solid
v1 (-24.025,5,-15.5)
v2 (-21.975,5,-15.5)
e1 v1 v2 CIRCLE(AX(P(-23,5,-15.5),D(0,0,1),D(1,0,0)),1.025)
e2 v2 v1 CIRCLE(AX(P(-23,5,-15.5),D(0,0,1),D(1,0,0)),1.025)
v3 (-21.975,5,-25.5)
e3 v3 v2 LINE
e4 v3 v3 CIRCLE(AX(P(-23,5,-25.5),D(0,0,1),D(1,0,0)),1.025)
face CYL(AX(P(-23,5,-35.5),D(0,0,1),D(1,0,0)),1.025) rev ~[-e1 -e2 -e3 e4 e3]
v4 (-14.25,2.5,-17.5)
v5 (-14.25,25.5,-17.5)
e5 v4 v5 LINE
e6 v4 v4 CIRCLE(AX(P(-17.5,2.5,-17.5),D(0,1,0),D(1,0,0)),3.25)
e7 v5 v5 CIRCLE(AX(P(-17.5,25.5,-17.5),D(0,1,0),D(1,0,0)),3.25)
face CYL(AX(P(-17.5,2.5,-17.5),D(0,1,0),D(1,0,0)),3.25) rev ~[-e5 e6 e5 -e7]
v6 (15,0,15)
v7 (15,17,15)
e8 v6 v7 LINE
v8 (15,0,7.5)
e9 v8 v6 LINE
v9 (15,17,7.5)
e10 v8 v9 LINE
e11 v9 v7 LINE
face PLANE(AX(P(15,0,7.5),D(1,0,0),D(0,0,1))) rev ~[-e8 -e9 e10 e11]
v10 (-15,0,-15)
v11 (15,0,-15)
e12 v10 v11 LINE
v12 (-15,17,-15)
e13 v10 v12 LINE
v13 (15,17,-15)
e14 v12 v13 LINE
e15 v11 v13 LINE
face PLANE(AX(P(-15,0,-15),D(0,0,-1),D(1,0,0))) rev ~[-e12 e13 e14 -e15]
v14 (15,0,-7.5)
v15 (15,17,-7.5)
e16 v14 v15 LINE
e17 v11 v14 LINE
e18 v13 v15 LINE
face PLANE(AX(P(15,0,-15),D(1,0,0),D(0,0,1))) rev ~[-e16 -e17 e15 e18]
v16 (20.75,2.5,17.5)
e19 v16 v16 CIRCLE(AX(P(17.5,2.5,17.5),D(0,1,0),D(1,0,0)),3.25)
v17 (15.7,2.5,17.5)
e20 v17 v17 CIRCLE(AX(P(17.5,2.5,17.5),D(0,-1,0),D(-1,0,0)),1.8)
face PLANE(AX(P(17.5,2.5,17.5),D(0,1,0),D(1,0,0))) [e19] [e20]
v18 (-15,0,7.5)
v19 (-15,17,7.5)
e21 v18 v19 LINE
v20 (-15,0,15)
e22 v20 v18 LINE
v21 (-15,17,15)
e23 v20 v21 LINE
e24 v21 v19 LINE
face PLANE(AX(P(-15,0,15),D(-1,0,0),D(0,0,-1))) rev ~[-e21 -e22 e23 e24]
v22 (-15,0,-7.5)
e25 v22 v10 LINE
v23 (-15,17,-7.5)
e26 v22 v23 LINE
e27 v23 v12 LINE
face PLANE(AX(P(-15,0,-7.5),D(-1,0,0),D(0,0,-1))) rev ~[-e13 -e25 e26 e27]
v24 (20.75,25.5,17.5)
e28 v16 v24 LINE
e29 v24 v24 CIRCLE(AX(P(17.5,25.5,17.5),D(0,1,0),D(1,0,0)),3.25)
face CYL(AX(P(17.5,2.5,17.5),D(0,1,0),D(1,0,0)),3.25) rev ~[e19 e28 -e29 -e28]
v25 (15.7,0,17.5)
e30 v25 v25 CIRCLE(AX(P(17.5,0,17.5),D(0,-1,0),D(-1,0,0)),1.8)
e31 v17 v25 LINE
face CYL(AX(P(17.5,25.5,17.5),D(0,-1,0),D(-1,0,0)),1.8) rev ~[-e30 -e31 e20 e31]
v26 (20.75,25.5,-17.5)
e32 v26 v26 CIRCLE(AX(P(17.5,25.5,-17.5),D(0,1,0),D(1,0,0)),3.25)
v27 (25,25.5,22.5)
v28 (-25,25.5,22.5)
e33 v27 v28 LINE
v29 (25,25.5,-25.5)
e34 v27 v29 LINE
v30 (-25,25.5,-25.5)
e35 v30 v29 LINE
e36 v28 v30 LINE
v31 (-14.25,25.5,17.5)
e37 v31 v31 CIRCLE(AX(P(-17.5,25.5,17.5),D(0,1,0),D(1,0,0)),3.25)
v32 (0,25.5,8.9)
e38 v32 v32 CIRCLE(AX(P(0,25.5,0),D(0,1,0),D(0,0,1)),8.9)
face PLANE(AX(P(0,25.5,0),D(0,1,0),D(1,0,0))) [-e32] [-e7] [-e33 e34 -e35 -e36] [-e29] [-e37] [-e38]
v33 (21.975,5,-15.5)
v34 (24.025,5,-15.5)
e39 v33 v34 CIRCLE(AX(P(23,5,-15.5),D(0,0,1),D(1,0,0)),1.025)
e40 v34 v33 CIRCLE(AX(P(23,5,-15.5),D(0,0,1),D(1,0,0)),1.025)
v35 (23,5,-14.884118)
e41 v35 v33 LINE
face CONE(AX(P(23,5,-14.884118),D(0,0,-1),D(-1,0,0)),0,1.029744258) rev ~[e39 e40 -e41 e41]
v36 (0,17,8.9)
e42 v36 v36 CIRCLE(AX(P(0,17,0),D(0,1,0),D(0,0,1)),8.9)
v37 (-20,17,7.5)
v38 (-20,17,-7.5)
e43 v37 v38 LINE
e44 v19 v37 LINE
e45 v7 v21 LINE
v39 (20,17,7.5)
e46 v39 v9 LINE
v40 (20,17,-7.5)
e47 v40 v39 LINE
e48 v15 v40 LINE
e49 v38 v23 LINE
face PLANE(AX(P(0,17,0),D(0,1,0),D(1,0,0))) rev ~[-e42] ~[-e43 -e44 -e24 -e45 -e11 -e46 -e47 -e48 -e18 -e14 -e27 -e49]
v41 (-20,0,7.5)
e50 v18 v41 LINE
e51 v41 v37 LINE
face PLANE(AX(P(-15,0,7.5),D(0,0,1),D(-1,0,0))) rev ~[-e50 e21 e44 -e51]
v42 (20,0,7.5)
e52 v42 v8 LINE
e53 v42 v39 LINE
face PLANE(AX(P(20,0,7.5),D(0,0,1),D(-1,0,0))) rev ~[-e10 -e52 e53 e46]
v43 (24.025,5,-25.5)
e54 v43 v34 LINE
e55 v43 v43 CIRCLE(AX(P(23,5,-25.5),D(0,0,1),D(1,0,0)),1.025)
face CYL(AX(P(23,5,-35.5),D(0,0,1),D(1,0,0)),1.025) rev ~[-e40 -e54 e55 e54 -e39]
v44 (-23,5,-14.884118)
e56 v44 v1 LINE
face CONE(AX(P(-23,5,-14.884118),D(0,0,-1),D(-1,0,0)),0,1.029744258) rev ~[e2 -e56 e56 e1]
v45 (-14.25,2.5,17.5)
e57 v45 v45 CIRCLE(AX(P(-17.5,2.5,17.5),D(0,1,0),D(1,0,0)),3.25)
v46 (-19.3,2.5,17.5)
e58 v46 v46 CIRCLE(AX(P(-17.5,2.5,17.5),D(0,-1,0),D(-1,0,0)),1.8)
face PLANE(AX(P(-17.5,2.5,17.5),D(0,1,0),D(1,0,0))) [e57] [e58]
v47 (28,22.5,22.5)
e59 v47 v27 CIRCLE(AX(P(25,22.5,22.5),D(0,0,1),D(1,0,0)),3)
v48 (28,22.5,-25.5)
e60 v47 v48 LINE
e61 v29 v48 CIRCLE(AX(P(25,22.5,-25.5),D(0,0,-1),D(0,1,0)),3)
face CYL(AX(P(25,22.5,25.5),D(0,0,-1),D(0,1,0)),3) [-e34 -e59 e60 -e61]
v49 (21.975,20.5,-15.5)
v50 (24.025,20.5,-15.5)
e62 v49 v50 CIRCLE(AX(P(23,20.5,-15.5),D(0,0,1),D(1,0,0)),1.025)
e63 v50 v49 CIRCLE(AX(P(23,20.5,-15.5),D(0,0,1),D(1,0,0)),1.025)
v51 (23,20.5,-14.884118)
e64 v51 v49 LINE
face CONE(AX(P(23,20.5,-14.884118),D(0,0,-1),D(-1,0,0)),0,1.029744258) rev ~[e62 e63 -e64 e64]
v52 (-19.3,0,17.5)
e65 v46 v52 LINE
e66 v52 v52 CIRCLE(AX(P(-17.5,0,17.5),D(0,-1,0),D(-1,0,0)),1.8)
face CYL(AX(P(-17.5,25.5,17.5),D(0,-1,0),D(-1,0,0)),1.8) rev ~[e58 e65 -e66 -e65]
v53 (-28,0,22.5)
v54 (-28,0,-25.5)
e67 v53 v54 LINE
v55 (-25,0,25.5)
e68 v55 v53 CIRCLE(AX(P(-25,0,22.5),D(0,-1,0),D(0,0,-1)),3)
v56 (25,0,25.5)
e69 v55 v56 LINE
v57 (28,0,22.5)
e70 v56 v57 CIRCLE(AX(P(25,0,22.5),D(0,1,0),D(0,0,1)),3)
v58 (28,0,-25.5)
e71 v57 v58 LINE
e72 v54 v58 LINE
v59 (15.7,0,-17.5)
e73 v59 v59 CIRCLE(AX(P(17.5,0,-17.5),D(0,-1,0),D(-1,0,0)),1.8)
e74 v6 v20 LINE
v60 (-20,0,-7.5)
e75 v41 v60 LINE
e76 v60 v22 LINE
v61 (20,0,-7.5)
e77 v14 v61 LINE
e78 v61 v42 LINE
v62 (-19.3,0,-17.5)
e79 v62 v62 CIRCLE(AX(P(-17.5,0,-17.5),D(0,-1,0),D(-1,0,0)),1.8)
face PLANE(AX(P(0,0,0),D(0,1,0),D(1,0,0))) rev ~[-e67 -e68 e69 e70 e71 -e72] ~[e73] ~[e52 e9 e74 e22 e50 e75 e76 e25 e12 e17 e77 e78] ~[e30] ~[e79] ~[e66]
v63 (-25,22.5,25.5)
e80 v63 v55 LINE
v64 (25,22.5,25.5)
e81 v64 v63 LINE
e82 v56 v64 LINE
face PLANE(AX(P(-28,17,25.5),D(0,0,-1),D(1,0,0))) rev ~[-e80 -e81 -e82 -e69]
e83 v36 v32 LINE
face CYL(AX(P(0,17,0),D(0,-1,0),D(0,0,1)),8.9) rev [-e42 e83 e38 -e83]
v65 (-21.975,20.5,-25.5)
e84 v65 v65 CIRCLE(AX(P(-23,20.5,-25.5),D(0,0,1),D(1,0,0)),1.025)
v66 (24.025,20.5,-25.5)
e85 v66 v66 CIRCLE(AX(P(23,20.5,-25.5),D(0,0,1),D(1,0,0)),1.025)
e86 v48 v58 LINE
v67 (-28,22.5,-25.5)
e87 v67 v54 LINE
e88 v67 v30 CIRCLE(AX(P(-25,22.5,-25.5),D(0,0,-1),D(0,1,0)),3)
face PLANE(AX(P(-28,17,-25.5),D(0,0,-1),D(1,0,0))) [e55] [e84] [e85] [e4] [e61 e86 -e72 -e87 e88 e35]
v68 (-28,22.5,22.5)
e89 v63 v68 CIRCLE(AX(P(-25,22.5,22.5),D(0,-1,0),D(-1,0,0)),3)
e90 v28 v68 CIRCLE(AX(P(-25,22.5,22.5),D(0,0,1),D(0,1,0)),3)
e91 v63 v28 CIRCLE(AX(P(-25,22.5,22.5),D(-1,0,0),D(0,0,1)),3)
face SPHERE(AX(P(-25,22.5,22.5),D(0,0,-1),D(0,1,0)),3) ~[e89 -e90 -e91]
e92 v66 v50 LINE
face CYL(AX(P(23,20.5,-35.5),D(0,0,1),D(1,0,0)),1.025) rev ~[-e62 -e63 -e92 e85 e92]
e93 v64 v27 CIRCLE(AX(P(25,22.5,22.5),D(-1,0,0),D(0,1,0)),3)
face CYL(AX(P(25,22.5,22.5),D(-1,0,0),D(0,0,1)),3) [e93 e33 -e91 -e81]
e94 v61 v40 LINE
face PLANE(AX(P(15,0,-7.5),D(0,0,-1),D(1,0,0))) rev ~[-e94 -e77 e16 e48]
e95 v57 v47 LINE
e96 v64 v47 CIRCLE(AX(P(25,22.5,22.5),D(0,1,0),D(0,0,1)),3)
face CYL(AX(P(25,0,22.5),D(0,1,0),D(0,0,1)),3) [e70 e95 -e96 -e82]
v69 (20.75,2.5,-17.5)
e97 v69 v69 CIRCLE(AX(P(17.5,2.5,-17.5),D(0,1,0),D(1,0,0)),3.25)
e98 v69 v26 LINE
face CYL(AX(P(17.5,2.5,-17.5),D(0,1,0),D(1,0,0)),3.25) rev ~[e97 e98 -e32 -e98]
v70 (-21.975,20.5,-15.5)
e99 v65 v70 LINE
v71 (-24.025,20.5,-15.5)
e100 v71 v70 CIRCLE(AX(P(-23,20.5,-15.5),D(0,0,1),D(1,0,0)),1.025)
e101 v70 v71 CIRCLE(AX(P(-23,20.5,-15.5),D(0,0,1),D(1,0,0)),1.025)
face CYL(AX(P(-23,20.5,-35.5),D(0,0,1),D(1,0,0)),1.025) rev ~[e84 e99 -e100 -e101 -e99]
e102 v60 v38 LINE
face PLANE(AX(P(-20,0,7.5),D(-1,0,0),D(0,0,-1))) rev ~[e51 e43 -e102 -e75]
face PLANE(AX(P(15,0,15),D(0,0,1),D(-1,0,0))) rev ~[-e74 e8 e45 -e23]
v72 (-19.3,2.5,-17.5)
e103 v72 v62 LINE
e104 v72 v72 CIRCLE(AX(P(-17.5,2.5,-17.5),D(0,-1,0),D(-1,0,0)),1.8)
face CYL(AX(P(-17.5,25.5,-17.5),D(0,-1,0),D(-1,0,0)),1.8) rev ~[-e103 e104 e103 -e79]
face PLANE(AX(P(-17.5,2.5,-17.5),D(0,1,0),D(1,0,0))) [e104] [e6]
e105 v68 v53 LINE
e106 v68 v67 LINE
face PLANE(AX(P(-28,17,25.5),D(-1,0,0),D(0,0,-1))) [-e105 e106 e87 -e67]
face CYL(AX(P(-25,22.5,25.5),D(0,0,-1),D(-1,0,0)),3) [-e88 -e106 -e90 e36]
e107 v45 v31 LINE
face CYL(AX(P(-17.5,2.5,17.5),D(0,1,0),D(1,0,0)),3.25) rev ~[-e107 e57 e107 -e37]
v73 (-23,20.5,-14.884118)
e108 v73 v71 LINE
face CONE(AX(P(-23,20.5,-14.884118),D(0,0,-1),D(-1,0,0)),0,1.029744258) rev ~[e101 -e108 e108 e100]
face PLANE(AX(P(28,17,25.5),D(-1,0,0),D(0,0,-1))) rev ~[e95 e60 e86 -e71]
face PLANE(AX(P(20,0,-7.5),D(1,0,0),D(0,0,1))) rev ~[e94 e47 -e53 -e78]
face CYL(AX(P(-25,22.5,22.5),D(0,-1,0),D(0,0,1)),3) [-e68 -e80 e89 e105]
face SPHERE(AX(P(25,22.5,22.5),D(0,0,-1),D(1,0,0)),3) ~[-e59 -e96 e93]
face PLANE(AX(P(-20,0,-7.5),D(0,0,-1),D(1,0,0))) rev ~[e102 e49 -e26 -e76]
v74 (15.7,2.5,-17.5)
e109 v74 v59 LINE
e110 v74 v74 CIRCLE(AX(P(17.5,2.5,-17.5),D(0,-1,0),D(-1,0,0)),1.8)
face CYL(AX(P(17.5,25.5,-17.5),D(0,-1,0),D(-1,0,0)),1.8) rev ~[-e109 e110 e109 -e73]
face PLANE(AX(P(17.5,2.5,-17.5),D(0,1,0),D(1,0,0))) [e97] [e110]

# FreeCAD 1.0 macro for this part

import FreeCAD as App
import Part
import Sketcher
Q = App.Units.Quantity


def edges_at(feature, points):
    """Names of the edges that pass closest to the given points."""
    edges = feature.Shape.Edges
    near = lambda p: min(range(len(edges)), key=lambda i: edges[i].distToShape(Part.Vertex(*p))[0])
    return sorted({f"Edge{near(p) + 1}" for p in points})

doc = App.newDocument("Part")
body = doc.addObject("PartDesign::Body", "Body")

sketch1 = body.newObject("Sketcher::SketchObject", "Sketch")
sketch1.AttachmentSupport = (doc.getObject("XZ_Plane"), [""])
sketch1.MapMode = "FlatFace"
sketch1.addGeometry([
    Part.LineSegment(App.Vector(-28, -26, 0), App.Vector(-28, 26, 0)),
    Part.LineSegment(App.Vector(-28, 26, 0), App.Vector(28, 26, 0)),
    Part.LineSegment(App.Vector(28, 26, 0), App.Vector(28, -26, 0)),
    Part.LineSegment(App.Vector(28, -26, 0), App.Vector(-28, -26, 0)),
    Part.LineSegment(App.Vector(15, 8, 0), App.Vector(15, 15, 0)),
    Part.LineSegment(App.Vector(15, 15, 0), App.Vector(-15, 15, 0)),
    Part.LineSegment(App.Vector(-15, 15, 0), App.Vector(-15, 8, 0)),
    Part.LineSegment(App.Vector(-15, 8, 0), App.Vector(-20, 8, 0)),
    Part.LineSegment(App.Vector(-20, 8, 0), App.Vector(-20, -8, 0)),
    Part.LineSegment(App.Vector(-20, -8, 0), App.Vector(-15, -8, 0)),
    Part.LineSegment(App.Vector(-15, -8, 0), App.Vector(-15, -15, 0)),
    Part.LineSegment(App.Vector(-15, -15, 0), App.Vector(15, -15, 0)),
    Part.LineSegment(App.Vector(15, -15, 0), App.Vector(15, -8, 0)),
    Part.LineSegment(App.Vector(15, -8, 0), App.Vector(20, -8, 0)),
    Part.LineSegment(App.Vector(20, -8, 0), App.Vector(20, 8, 0)),
    Part.LineSegment(App.Vector(20, 8, 0), App.Vector(15, 8, 0)),
], False)
sketch1.addConstraint([
    Sketcher.Constraint("Coincident", 0, 2, 1, 1),
    Sketcher.Constraint("Coincident", 1, 2, 2, 1),
    Sketcher.Constraint("Coincident", 2, 2, 3, 1),
    Sketcher.Constraint("Coincident", 3, 2, 0, 1),
    Sketcher.Constraint("Coincident", 4, 2, 5, 1),
    Sketcher.Constraint("Coincident", 5, 2, 6, 1),
    Sketcher.Constraint("Coincident", 6, 2, 7, 1),
    Sketcher.Constraint("Coincident", 7, 2, 8, 1),
    Sketcher.Constraint("Coincident", 8, 2, 9, 1),
    Sketcher.Constraint("Coincident", 9, 2, 10, 1),
    Sketcher.Constraint("Coincident", 10, 2, 11, 1),
    Sketcher.Constraint("Coincident", 11, 2, 12, 1),
    Sketcher.Constraint("Coincident", 12, 2, 13, 1),
    Sketcher.Constraint("Coincident", 13, 2, 14, 1),
    Sketcher.Constraint("Coincident", 14, 2, 15, 1),
    Sketcher.Constraint("Coincident", 15, 2, 4, 1),
    Sketcher.Constraint("Vertical", 0),
    Sketcher.Constraint("Horizontal", 1),
    Sketcher.Constraint("Vertical", 2),
    Sketcher.Constraint("Horizontal", 3),
    Sketcher.Constraint("Vertical", 4),
    Sketcher.Constraint("Horizontal", 5),
    Sketcher.Constraint("Vertical", 6),
    Sketcher.Constraint("Horizontal", 7),
    Sketcher.Constraint("Vertical", 8),
    Sketcher.Constraint("Horizontal", 9),
    Sketcher.Constraint("Vertical", 10),
    Sketcher.Constraint("Horizontal", 11),
    Sketcher.Constraint("Vertical", 12),
    Sketcher.Constraint("Horizontal", 13),
    Sketcher.Constraint("Vertical", 14),
    Sketcher.Constraint("Horizontal", 15),
    Sketcher.Constraint("Symmetric", 0, 2, 2, 2, -1, 1),
    Sketcher.Constraint("Symmetric", 4, 2, 10, 2, -1, 1),
    Sketcher.Constraint("Symmetric", 6, 2, 12, 2, -1, 1),
    Sketcher.Constraint("Symmetric", 8, 2, 14, 2, -1, 1),
    Sketcher.Constraint("Symmetric", 9, 2, 12, 2, -2),
    Sketcher.Constraint("DistanceX", 1, 1, 1, 2, Q("56 mm")),
    Sketcher.Constraint("DistanceX", 5, 2, 5, 1, Q("30 mm")),
    Sketcher.Constraint("DistanceX", 7, 2, 7, 1, Q("5 mm")),
    Sketcher.Constraint("DistanceY", 0, 1, 0, 2, Q("51 mm")),
    Sketcher.Constraint("DistanceY", 8, 2, 8, 1, Q("15 mm")),
    Sketcher.Constraint("DistanceY", 4, 1, 4, 2, Q("7.5 mm")),
])
pad1 = body.newObject("PartDesign::Pad", "Pad")
pad1.Profile = sketch1
pad1.Length = 17
pad1.Reversed = True

sketch2 = body.newObject("Sketcher::SketchObject", "Sketch001")
sketch2.AttachmentSupport = (doc.getObject("XZ_Plane"), [""])
sketch2.MapMode = "FlatFace"
sketch2.AttachmentOffset = App.Placement(App.Vector(0, 0, -17), App.Rotation())
sketch2.addGeometry([
    Part.LineSegment(App.Vector(-28, -26, 0), App.Vector(-28, 26, 0)),
    Part.LineSegment(App.Vector(-28, 26, 0), App.Vector(28, 26, 0)),
    Part.LineSegment(App.Vector(28, 26, 0), App.Vector(28, -26, 0)),
    Part.LineSegment(App.Vector(28, -26, 0), App.Vector(-28, -26, 0)),
    Part.Circle(App.Vector(0, 0, 0), App.Vector(0, 0, 1), 9),
], False)
sketch2.addConstraint([
    Sketcher.Constraint("Coincident", 0, 2, 1, 1),
    Sketcher.Constraint("Coincident", 1, 2, 2, 1),
    Sketcher.Constraint("Coincident", 2, 2, 3, 1),
    Sketcher.Constraint("Coincident", 3, 2, 0, 1),
    Sketcher.Constraint("Vertical", 0),
    Sketcher.Constraint("Horizontal", 1),
    Sketcher.Constraint("Vertical", 2),
    Sketcher.Constraint("Horizontal", 3),
    Sketcher.Constraint("Coincident", 4, 3, -1, 1),
    Sketcher.Constraint("Symmetric", 0, 2, 2, 2, -1, 1),
    Sketcher.Constraint("Diameter", 4, Q("17.8 mm")),
    Sketcher.Constraint("DistanceX", 1, 1, 1, 2, Q("56 mm")),
    Sketcher.Constraint("DistanceY", 0, 1, 0, 2, Q("51 mm")),
])
pad2 = body.newObject("PartDesign::Pad", "Pad001")
pad2.Profile = sketch2
pad2.Length = 8.5
pad2.Reversed = True

sketch3 = body.newObject("Sketcher::SketchObject", "Sketch002")
sketch3.AttachmentSupport = (doc.getObject("XZ_Plane"), [""])
sketch3.MapMode = "FlatFace"
sketch3.AttachmentOffset = App.Placement(App.Vector(0, 0, -25.5), App.Rotation())
sketch3.addGeometry([
    Part.Circle(App.Vector(-17.5, -17.5, 0), App.Vector(0, 0, 1), 1.8),
    Part.Circle(App.Vector(17.5, -17.5, 0), App.Vector(0, 0, 1), 1.8),
    Part.Circle(App.Vector(17.5, 17.5, 0), App.Vector(0, 0, 1), 1.8),
    Part.Circle(App.Vector(-17.5, 17.5, 0), App.Vector(0, 0, 1), 1.8),
], False)
sketch3.addConstraint([
    Sketcher.Constraint("Equal", 0, 1),
    Sketcher.Constraint("Equal", 1, 2),
    Sketcher.Constraint("Equal", 2, 3),
    Sketcher.Constraint("Symmetric", 0, 3, 2, 3, -1, 1),
    Sketcher.Constraint("Symmetric", 1, 3, 3, 3, -1, 1),
    Sketcher.Constraint("Symmetric", 0, 3, 1, 3, -2),
    Sketcher.Constraint("Diameter", 0, Q("3.6 mm")),
    Sketcher.Constraint("DistanceX", 0, 3, 1, 3, Q("35 mm")),
    Sketcher.Constraint("DistanceY", 1, 3, 2, 3, Q("35 mm")),
])
doc.recompute()
hole = body.newObject("PartDesign::Hole", "Hole")
hole.Profile = sketch3
hole.ThreadType = "None"
hole.Diameter = 3.6
hole.DepthType = "ThroughAll"
hole.HoleCutType = "Counterbore"
hole.HoleCutDiameter = 6.5
hole.HoleCutDepth = 23
hole.Reversed = True
doc.recompute()

fillet = body.newObject("PartDesign::Fillet", "Fillet")
fillet.Base = (hole, edges_at(hole, [(-28, 25.5, 0), (28, 25.5, 0)]))
fillet.Radius = 3

sketch4 = body.newObject("Sketcher::SketchObject", "Sketch003")
sketch4.AttachmentSupport = (doc.getObject("XY_Plane"), [""])
sketch4.MapMode = "FlatFace"
sketch4.AttachmentOffset = App.Placement(App.Vector(0, 0, -25.5), App.Rotation())
sketch4.addGeometry([
    Part.Circle(App.Vector(23, 20.5, 0), App.Vector(0, 0, 1), 1),
    Part.Circle(App.Vector(-23, 20.5, 0), App.Vector(0, 0, 1), 1),
    Part.Circle(App.Vector(23, 5, 0), App.Vector(0, 0, 1), 1),
    Part.Circle(App.Vector(-23, 5, 0), App.Vector(0, 0, 1), 1),
], False)
sketch4.addConstraint([
    Sketcher.Constraint("Equal", 0, 1),
    Sketcher.Constraint("Equal", 1, 2),
    Sketcher.Constraint("Equal", 2, 3),
    Sketcher.Constraint("Symmetric", 0, 3, 1, 3, -2),
    Sketcher.Constraint("Symmetric", 2, 3, 3, 3, -2),
    Sketcher.Constraint("Vertical", 0, 3, 2, 3),
    Sketcher.Constraint("Diameter", 0, Q("2.05 mm")),
    Sketcher.Constraint("DistanceX", -1, 1, 0, 3, Q("23 mm")),
    Sketcher.Constraint("DistanceY", -1, 1, 2, 3, Q("5 mm")),
    Sketcher.Constraint("DistanceY", -1, 1, 0, 3, Q("20.5 mm")),
])
doc.recompute()
hole2 = body.newObject("PartDesign::Hole", "Hole001")
hole2.Profile = sketch4
hole2.ThreadType = "None"
hole2.Diameter = 2.05
hole2.DepthType = "Dimension"
hole2.Depth = 10
hole2.DrillPoint = "Angled"
hole2.DrillPointAngle = 118
hole2.Reversed = True
doc.recompute()

fillet2 = body.newObject("PartDesign::Fillet", "Fillet001")
fillet2.Base = (hole2, edges_at(hole2, [
    (28, 11.25, 25.5),
    (-28, 11.25, 25.5),
    (-27.121, 24.621, 25.5),
    (27.121, 24.621, 25.5),
    (0, 25.5, 25.5),
]))
fillet2.Radius = 3

doc.recompute()
